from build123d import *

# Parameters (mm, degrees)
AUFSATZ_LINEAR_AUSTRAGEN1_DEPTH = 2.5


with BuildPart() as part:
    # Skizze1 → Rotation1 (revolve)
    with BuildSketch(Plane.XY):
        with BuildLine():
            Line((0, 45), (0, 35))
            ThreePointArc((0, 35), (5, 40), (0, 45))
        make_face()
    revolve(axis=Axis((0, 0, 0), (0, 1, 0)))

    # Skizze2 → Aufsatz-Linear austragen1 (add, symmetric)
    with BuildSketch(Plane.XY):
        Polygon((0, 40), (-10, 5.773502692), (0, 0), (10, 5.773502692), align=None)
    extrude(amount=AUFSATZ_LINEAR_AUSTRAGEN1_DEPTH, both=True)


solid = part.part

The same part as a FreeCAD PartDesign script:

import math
import FreeCAD as App
import Part
import Sketcher
from FreeCAD import Vector
Q = App.Units.Quantity


def add_polygon(sketch, points):
    """Adds a closed chain of lines whose ends are joined by coincident constraints."""
    first, n = sketch.GeometryCount, len(points)
    for a, b in zip(points, points[1:] + points[:1]):
        sketch.addGeometry(Part.LineSegment(App.Vector(*a, 0), App.Vector(*b, 0)), False)
    for i in range(n):
        sketch.addConstraint(Sketcher.Constraint("Coincident", first + i, 2, first + (i + 1) % n, 1))

doc = App.newDocument("Part")
body = doc.addObject("PartDesign::Body", "Body")

# Sketch on XY plane
sketch1 = doc.addObject("Sketcher::SketchObject", "Sketch")
body.addObject(sketch1)
sketch1.AttachmentSupport = (doc.XY_Plane, [""])
sketch1.MapMode = "FlatFace"
sketch1.addGeometry([
    Part.LineSegment(Vector(0, 45, 0), Vector(0, 35, 0)),
    Part.ArcOfCircle(Part.Circle(Vector(0, 40, 0), Vector(0, 0, 1), 5), math.radians(-90), math.radians(90)),
], False)
sketch1.addConstraint([
    Sketcher.Constraint("Coincident", 0, 1, 1, 2),
    Sketcher.Constraint("Coincident", 1, 1, 0, 2),
    Sketcher.Constraint("Vertical", 0),
    Sketcher.Constraint("PointOnObject", 1, 3, -2),
    Sketcher.Constraint("PointOnObject", 0, 1, -2),
    Sketcher.Constraint("Radius", 1, 5.0),
    Sketcher.Constraint("DistanceY", -1, 1, 1, 3, 40.0),
])
revolution = doc.addObject("PartDesign::Revolution", "Revolution")
body.addObject(revolution)
revolution.Profile = sketch1
revolution.ReferenceAxis = (sketch1, ["V_Axis"])
revolution.Angle = 360

# Sketch on XY plane
sketch2 = doc.addObject("Sketcher::SketchObject", "Sketch001")
body.addObject(sketch2)
sketch2.AttachmentSupport = (doc.XY_Plane, [""])
sketch2.MapMode = "FlatFace"
add_polygon(sketch2, [(0, 40), (-10, 6), (0, 0), (10, 6)])  # lines 0-3
sketch2.addConstraint([
    Sketcher.Constraint("Coincident", 1, 2, -1, 1),
    Sketcher.Constraint("Symmetric", 0, 2, 2, 2, -2),
    Sketcher.Constraint("PointOnObject", 3, 2, -2),
    Sketcher.Constraint("Angle", 1, Q("-30 deg")),
    Sketcher.Constraint("DistanceX", 0, 2, -1, 1, 10.0),
    Sketcher.Constraint("DistanceY", -1, 1, 3, 2, 40.0),
])
pad1 = doc.addObject("PartDesign::Pad", "Pad")
body.addObject(pad1)
pad1.Profile = sketch2
pad1.Length = 5
pad1.Midplane = True

doc.recompute()
